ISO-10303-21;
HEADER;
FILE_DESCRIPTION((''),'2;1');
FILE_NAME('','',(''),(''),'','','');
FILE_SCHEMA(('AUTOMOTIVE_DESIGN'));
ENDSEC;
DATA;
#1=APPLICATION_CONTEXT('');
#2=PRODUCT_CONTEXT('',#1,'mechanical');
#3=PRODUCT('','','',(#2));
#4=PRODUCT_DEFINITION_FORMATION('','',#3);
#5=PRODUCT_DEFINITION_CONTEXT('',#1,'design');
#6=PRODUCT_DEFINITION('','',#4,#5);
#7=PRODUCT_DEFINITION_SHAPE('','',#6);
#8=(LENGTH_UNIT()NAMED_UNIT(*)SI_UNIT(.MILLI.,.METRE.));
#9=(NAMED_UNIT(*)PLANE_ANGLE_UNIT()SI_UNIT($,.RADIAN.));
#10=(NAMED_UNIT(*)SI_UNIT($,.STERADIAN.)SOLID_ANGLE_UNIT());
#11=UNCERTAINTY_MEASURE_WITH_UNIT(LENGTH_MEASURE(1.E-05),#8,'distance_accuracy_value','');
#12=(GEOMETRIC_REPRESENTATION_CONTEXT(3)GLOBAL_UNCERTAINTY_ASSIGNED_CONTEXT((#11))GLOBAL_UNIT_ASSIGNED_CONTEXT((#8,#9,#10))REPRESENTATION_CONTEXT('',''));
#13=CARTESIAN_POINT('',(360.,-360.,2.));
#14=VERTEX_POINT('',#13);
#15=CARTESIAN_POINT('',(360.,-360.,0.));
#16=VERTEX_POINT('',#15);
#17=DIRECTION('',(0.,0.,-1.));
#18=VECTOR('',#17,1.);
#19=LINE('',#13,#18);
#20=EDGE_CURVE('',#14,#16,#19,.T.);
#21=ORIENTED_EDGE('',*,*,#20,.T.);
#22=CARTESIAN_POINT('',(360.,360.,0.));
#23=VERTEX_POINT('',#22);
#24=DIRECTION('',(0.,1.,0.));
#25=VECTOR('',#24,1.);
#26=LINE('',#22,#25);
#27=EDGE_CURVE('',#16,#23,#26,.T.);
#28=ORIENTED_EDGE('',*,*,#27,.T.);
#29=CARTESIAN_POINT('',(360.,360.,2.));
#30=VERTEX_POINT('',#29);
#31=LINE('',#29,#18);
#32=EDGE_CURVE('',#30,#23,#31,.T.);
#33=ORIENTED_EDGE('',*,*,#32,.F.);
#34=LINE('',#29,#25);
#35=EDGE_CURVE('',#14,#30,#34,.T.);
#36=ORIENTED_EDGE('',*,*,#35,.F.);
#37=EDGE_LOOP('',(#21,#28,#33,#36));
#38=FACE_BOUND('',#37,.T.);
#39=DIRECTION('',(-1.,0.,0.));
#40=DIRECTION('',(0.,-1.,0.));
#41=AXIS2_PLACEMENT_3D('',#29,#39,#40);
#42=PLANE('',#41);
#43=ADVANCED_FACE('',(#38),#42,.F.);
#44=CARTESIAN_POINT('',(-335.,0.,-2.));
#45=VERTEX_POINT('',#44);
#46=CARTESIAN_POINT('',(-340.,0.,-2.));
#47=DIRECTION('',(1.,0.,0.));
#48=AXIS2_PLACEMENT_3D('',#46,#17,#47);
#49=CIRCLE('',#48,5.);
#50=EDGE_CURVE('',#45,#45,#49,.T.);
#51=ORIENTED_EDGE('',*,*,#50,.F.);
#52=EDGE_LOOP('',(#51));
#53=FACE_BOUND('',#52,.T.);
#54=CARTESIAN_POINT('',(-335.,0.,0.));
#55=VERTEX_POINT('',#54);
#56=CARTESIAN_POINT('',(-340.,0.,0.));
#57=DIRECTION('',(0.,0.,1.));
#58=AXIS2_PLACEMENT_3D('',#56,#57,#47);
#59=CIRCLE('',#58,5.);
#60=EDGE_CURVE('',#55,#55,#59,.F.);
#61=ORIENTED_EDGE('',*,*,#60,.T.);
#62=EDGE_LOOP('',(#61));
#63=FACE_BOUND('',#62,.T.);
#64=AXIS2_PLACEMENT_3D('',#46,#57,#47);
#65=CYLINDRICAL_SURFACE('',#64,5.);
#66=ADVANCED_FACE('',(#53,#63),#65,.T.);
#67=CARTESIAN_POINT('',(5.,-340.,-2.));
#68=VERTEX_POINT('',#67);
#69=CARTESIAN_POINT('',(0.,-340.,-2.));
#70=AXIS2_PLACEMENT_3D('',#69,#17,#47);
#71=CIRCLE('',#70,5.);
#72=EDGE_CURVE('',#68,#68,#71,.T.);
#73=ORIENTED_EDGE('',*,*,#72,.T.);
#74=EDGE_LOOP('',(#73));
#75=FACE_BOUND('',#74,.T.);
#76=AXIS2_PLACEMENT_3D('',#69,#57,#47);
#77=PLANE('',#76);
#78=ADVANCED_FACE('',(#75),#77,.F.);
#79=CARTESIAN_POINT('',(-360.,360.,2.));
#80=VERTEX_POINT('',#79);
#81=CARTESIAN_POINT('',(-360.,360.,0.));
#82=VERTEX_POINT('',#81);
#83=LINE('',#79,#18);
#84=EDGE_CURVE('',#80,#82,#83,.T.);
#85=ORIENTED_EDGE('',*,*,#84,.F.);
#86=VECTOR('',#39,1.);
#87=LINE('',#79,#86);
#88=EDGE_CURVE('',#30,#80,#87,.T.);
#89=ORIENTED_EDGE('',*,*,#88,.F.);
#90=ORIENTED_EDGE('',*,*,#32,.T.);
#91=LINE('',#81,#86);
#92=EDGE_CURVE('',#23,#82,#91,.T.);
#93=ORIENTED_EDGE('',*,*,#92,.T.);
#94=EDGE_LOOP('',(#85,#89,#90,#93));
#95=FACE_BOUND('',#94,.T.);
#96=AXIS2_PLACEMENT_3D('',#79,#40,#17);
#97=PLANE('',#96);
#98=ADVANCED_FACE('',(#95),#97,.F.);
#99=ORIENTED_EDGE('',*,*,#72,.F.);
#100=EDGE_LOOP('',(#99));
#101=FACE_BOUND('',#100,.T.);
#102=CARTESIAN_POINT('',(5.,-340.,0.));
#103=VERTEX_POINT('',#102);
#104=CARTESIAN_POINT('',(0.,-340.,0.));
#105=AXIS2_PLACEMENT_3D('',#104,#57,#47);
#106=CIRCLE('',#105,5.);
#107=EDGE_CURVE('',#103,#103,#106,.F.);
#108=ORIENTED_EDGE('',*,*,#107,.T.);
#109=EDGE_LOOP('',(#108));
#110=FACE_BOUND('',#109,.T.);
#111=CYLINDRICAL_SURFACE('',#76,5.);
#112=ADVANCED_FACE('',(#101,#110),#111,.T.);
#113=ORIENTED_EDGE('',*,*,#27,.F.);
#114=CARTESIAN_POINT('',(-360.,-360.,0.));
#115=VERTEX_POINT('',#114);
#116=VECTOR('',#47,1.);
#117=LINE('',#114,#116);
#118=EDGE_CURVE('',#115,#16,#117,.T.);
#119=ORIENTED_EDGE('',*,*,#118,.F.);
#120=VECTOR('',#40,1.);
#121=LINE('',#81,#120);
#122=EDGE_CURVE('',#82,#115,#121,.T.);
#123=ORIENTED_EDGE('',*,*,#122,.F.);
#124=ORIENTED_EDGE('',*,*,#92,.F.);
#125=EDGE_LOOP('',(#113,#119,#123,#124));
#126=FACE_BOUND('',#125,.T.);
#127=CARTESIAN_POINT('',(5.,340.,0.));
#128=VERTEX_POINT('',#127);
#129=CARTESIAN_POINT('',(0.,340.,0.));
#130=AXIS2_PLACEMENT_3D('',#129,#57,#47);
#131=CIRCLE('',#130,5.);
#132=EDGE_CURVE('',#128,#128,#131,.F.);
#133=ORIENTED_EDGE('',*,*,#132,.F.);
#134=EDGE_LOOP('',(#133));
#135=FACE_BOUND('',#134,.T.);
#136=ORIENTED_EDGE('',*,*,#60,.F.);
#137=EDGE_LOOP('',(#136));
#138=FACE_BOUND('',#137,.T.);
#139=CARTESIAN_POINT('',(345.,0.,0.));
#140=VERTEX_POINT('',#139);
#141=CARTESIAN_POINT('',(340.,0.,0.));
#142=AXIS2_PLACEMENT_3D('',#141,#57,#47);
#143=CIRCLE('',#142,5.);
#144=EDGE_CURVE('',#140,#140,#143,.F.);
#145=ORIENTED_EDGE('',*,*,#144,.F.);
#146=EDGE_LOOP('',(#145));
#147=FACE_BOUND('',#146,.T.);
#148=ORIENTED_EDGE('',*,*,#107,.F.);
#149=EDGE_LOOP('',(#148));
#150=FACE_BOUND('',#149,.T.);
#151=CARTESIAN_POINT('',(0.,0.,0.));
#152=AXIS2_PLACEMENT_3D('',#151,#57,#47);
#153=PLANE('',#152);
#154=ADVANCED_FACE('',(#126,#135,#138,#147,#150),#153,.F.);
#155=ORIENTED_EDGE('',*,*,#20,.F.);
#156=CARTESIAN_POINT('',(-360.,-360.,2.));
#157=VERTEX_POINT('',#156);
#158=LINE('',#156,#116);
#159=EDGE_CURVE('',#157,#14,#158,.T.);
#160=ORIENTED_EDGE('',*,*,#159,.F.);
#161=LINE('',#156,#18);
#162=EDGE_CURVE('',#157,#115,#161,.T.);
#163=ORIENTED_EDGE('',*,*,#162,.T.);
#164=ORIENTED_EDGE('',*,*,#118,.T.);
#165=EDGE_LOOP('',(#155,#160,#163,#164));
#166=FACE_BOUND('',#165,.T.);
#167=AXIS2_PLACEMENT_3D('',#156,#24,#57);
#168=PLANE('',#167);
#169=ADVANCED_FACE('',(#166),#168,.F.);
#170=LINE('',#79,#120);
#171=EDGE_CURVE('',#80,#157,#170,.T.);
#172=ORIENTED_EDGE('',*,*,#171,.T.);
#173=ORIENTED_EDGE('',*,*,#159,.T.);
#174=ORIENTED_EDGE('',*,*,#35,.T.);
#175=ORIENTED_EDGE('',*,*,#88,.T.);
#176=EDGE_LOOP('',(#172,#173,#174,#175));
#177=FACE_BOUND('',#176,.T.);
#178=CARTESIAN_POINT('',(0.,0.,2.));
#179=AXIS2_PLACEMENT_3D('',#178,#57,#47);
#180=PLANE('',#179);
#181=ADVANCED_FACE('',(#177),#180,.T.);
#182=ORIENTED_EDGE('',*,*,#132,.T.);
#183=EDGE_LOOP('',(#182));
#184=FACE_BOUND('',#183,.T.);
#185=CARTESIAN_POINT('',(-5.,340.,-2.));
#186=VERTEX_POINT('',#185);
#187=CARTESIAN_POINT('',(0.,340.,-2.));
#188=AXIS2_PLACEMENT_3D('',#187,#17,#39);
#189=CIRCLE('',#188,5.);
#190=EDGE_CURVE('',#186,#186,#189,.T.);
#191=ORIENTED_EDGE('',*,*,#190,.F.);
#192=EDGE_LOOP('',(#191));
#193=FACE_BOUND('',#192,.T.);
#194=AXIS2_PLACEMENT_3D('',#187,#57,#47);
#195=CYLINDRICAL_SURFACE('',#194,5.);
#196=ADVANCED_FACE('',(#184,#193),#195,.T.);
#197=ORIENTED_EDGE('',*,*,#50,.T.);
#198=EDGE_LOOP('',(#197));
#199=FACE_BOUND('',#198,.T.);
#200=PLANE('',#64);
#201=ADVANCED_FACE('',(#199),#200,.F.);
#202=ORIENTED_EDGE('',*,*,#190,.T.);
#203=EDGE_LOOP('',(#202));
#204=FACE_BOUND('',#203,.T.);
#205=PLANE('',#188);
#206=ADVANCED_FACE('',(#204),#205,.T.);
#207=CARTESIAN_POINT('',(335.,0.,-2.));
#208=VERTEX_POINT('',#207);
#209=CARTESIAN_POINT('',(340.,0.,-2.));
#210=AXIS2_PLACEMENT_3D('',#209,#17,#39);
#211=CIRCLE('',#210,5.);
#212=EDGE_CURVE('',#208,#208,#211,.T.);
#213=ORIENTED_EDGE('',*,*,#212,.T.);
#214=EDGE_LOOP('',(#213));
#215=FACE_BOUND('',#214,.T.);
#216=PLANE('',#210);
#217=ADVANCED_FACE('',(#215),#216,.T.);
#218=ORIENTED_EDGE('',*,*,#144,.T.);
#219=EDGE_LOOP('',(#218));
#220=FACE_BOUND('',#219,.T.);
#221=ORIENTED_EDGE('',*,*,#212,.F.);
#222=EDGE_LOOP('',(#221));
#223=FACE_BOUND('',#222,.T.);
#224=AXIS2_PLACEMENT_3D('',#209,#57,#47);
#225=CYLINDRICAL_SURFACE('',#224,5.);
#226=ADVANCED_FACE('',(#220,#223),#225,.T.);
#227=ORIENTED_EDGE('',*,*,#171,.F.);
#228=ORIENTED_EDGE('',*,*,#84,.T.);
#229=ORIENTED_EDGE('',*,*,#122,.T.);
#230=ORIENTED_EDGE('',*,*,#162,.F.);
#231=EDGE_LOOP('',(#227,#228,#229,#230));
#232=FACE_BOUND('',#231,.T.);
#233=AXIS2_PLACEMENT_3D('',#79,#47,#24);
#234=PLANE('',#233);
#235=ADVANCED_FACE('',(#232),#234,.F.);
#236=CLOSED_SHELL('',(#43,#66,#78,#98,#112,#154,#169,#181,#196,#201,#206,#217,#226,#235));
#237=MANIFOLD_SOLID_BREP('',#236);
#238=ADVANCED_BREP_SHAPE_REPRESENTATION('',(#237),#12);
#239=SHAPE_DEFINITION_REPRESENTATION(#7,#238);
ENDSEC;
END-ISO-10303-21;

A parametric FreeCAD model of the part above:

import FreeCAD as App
import Part
import Sketcher
from FreeCAD import Vector
Q = App.Units.Quantity


def add_polygon(sketch, points):
    """Adds a closed chain of lines whose ends are joined by coincident constraints."""
    first, n = sketch.GeometryCount, len(points)
    for a, b in zip(points, points[1:] + points[:1]):
        sketch.addGeometry(Part.LineSegment(App.Vector(*a, 0), App.Vector(*b, 0)), False)
    for i in range(n):
        sketch.addConstraint(Sketcher.Constraint("Coincident", first + i, 2, first + (i + 1) % n, 1))

doc = App.newDocument("Part")
body = doc.addObject("PartDesign::Body", "Body")

# Sketch on XY plane
sketch1 = body.newObject("Sketcher::SketchObject", "Sketch")
sketch1.AttachmentSupport = (doc.getObject("XY_Plane"), [""])
sketch1.MapMode = "FlatFace"
add_polygon(sketch1, [(-360, 360), (-360, -360), (360, -360), (360, 360)])  # lines 0-3
sketch1.addConstraint([
    Sketcher.Constraint("Vertical", 0),
    Sketcher.Constraint("Horizontal", 1),
    Sketcher.Constraint("Vertical", 2),
    Sketcher.Constraint("Horizontal", 3),
    Sketcher.Constraint("Symmetric", 0, 2, 2, 2, -1, 1),
    Sketcher.Constraint("Equal", 3, 0),
    Sketcher.Constraint("DistanceX", 1, 1, 1, 2, Q("720 mm")),
])
pad1 = body.newObject("PartDesign::Pad", "Pad")
pad1.Profile = sketch1
pad1.Length = 2

# Sketch on XY plane
sketch2 = body.newObject("Sketcher::SketchObject", "Sketch001")
sketch2.AttachmentSupport = (doc.getObject("XY_Plane"), [""])
sketch2.MapMode = "FlatFace"
sketch2.addGeometry([
    Part.Circle(Vector(0, 340, 0), Vector(0, 0, 1), 5),
    Part.Circle(Vector(340, 0, 0), Vector(0, 0, 1), 5),
    Part.Circle(Vector(0, -340, 0), Vector(0, 0, 1), 5),
    Part.Circle(Vector(-340, 0, 0), Vector(0, 0, 1), 5),
], False)
sketch2.addConstraint([
    Sketcher.Constraint("Equal", 0, 1),
    Sketcher.Constraint("Equal", 1, 2),
    Sketcher.Constraint("Equal", 2, 3),
    Sketcher.Constraint("Symmetric", 0, 3, 2, 3, -1, 1),
    Sketcher.Constraint("Symmetric", 1, 3, 3, 3, -1, 1),
    Sketcher.Constraint("PointOnObject", 0, 3, -2),
    Sketcher.Constraint("PointOnObject", 1, 3, -1),
    Sketcher.Constraint("Diameter", 0, Q("10 mm")),
    Sketcher.Constraint("DistanceY", -1, 1, 0, 3, Q("340 mm")),
    Sketcher.Constraint("DistanceX", -1, 1, 1, 3, Q("340 mm")),
])
pad2 = body.newObject("PartDesign::Pad", "Pad001")
pad2.Profile = sketch2
pad2.Length = 2
pad2.Reversed = True

doc.recompute()
